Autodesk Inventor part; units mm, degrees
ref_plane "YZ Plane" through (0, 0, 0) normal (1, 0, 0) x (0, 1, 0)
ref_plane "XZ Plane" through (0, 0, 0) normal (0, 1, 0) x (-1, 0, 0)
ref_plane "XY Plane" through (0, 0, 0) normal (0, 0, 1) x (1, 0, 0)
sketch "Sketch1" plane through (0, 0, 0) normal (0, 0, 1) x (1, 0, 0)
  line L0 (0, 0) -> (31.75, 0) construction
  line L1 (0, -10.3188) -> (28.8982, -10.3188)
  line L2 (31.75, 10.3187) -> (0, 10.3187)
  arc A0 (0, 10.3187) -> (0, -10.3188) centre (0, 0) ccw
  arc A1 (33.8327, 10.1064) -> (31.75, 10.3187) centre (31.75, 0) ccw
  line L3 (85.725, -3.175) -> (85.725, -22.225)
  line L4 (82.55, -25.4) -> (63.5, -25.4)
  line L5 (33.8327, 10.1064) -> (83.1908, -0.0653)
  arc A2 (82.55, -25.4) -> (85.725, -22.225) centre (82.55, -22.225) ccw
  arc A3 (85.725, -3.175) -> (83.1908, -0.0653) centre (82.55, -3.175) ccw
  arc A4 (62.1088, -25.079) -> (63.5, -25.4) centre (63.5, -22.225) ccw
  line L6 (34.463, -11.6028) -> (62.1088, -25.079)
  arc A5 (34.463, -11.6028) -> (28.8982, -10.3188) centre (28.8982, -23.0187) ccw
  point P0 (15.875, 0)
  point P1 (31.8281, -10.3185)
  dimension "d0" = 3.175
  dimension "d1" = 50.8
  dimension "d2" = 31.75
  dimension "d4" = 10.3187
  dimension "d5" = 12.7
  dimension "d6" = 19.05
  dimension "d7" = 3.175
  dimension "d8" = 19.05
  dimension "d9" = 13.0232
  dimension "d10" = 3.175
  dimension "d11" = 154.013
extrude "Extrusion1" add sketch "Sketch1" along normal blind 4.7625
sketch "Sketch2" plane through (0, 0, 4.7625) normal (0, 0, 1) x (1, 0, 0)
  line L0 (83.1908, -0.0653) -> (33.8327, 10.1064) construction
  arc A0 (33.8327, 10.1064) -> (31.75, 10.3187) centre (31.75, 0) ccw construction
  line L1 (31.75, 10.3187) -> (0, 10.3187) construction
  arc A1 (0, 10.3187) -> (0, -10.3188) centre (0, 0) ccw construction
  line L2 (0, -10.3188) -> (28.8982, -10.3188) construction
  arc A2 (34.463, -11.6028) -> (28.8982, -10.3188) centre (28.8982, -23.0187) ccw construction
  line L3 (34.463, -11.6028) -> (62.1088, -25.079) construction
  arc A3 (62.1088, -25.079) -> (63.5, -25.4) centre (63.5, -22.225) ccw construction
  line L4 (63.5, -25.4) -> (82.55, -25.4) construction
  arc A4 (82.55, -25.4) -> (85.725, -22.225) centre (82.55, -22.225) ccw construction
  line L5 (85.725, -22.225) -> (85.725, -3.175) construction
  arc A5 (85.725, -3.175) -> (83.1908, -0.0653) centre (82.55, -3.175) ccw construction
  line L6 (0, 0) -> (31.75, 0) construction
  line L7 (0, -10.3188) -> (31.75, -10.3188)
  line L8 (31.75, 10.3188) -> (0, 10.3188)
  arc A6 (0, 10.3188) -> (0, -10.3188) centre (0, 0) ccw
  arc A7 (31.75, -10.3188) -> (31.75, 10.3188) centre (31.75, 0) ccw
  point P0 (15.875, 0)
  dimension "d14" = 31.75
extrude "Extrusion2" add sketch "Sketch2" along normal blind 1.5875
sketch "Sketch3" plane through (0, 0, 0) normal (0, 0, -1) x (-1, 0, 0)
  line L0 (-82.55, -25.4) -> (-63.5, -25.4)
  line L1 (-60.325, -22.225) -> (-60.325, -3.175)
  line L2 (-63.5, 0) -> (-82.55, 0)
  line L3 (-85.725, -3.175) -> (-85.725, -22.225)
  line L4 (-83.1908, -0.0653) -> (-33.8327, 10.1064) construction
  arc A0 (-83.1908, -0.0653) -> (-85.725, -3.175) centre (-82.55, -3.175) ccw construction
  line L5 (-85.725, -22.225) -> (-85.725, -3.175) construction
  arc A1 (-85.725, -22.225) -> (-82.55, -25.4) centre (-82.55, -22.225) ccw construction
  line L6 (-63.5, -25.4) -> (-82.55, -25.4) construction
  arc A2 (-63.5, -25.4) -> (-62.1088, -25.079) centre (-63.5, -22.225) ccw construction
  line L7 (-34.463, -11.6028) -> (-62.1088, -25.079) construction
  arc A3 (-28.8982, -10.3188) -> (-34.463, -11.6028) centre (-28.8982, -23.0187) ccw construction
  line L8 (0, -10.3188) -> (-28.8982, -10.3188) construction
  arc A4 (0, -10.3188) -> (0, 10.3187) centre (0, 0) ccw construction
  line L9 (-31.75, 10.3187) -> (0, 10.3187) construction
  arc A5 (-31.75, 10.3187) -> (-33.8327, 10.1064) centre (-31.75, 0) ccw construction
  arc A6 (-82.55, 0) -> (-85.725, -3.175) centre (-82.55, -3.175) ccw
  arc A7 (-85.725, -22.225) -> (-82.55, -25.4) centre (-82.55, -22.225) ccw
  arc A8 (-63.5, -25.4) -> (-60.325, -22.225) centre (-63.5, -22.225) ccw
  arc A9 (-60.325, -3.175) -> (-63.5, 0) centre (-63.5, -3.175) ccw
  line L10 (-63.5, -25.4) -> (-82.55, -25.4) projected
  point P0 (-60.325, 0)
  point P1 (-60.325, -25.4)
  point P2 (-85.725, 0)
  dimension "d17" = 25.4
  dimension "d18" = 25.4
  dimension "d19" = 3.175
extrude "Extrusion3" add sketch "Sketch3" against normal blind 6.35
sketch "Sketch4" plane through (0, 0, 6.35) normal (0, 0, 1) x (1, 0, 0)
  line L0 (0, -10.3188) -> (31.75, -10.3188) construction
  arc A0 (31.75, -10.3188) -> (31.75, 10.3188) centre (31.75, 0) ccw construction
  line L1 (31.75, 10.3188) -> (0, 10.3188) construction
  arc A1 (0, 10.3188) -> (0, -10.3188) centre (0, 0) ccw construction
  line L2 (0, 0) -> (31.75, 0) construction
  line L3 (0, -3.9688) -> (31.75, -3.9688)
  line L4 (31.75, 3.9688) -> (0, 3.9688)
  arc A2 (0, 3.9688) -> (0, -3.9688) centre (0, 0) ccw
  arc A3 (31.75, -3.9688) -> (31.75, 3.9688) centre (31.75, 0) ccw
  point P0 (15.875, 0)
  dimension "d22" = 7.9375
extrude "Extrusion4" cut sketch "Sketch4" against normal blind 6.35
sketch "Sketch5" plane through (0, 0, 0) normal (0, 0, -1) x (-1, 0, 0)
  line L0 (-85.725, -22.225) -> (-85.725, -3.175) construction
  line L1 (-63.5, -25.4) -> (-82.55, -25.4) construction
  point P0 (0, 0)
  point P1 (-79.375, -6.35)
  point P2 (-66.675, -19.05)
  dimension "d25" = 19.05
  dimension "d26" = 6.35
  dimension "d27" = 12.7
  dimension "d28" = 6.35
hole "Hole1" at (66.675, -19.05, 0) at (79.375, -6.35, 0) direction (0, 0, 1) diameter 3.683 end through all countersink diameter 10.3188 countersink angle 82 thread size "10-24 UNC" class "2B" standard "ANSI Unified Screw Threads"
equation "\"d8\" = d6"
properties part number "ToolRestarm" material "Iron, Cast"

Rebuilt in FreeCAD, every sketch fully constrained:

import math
import FreeCAD as App
import Part
import Sketcher
Q = App.Units.Quantity

doc = App.newDocument("Part")
body = doc.addObject("PartDesign::Body", "Body")

sketch1 = body.newObject("Sketcher::SketchObject", "Sketch")
sketch1.AttachmentSupport = (doc.getObject("XY_Plane"), [""])
sketch1.MapMode = "FlatFace"
sketch1.addGeometry([
    Part.ArcOfCircle(Part.Circle(App.Vector(0, 0, 0), App.Vector(0, 0, 1), 10.3), math.radians(90), math.radians(270)),
    Part.LineSegment(App.Vector(0, -10.3, 0), App.Vector(28.9, -10.3, 0)),
    Part.ArcOfCircle(Part.Circle(App.Vector(28.9, -23, 0), App.Vector(0, 0, 1), 12.7), math.radians(64), math.radians(90)),
    Part.LineSegment(App.Vector(34.5, -11.6, 0), App.Vector(62.1, -25.1, 0)),
    Part.ArcOfCircle(Part.Circle(App.Vector(63.5, -22.2, 0), App.Vector(0, 0, 1), 3.2), math.radians(-116), math.radians(-90)),
    Part.LineSegment(App.Vector(63.5, -25.4, 0), App.Vector(82.5, -25.4, 0)),
    Part.ArcOfCircle(Part.Circle(App.Vector(82.5, -22.2, 0), App.Vector(0, 0, 1), 3.2), math.radians(-90), math.radians(0)),
    Part.LineSegment(App.Vector(85.7, -22.2, 0), App.Vector(85.7, -3.2, 0)),
    Part.ArcOfCircle(Part.Circle(App.Vector(82.5, -3.2, 0), App.Vector(0, 0, 1), 3.2), math.radians(0), math.radians(78)),
    Part.LineSegment(App.Vector(83.2, -0.1, 0), App.Vector(33.8, 10.1, 0)),
    Part.ArcOfCircle(Part.Circle(App.Vector(31.8, 0, 0), App.Vector(0, 0, 1), 10.3), math.radians(78.35), math.radians(90.01)),
    Part.LineSegment(App.Vector(31.8, 10.3, 0), App.Vector(0, 10.3, 0)),
], False)
sketch1.addConstraint([
    Sketcher.Constraint("Tangent", 0, 2, 1, 1),
    Sketcher.Constraint("Tangent", 1, 2, 2, 2),
    Sketcher.Constraint("Tangent", 2, 1, 3, 1),
    Sketcher.Constraint("Tangent", 3, 2, 4, 1),
    Sketcher.Constraint("Tangent", 4, 2, 5, 1),
    Sketcher.Constraint("Tangent", 5, 2, 6, 1),
    Sketcher.Constraint("Tangent", 6, 2, 7, 1),
    Sketcher.Constraint("Tangent", 7, 2, 8, 1),
    Sketcher.Constraint("Tangent", 8, 2, 9, 1),
    Sketcher.Constraint("Tangent", 9, 2, 10, 1),
    Sketcher.Constraint("Tangent", 10, 2, 11, 1),
    Sketcher.Constraint("Tangent", 11, 2, 0, 1),
    Sketcher.Constraint("Horizontal", 1),
    Sketcher.Constraint("Horizontal", 5),
    Sketcher.Constraint("Vertical", 7),
    Sketcher.Constraint("Horizontal", 11),
    Sketcher.Constraint("Coincident", 0, 3, -1, 1),
    Sketcher.Constraint("Equal", 4, 6),
    Sketcher.Constraint("Equal", 6, 8),
    Sketcher.Constraint("Equal", 5, 7),
    Sketcher.Constraint("Radius", 0, Q("0.406248 in")),
    Sketcher.Constraint("Radius", 4, Q("0.125 in")),
    Sketcher.Constraint("DistanceX", 5, 1, 5, 2, Q("0.75 in")),
    Sketcher.Constraint("DistanceX", 11, 2, 11, 1, Q("1.25 in")),
    Sketcher.Constraint("DistanceY", 8, 3, -1, 1, Q("0.125 in")),
    Sketcher.Constraint("Radius", 10, Q("0.406 in")),
    Sketcher.Constraint("DistanceX", -1, 1, 4, 3, Q("2.5 in")),
    Sketcher.Constraint("Radius", 2, Q("12.6982 mm")),
    Sketcher.Constraint("DistanceX", 1, 1, 1, 2, Q("28.8982 mm")),
])
pad1 = body.newObject("PartDesign::Pad", "Pad")
pad1.Profile = sketch1
pad1.Length = Q("0.1875 in")

sketch2 = body.newObject("Sketcher::SketchObject", "Sketch001")
sketch2.AttachmentSupport = (doc.getObject("XY_Plane"), [""])
sketch2.MapMode = "FlatFace"
sketch2.AttachmentOffset = App.Placement(App.Vector(0, 0, 0.1875 * 25.4), App.Rotation())
sketch2.addGeometry([
    Part.ArcOfCircle(Part.Circle(App.Vector(0, 0, 0), App.Vector(0, 0, 1), 10), math.radians(90), math.radians(270)),
    Part.LineSegment(App.Vector(0, -10, 0), App.Vector(32, -10, 0)),
    Part.ArcOfCircle(Part.Circle(App.Vector(32, 0, 0), App.Vector(0, 0, 1), 10), math.radians(-90), math.radians(90)),
    Part.LineSegment(App.Vector(32, 10, 0), App.Vector(0, 10, 0)),
], False)
sketch2.addConstraint([
    Sketcher.Constraint("Tangent", 0, 2, 1, 1),
    Sketcher.Constraint("Tangent", 1, 2, 2, 1),
    Sketcher.Constraint("Tangent", 2, 2, 3, 1),
    Sketcher.Constraint("Tangent", 3, 2, 0, 1),
    Sketcher.Constraint("Horizontal", 1),
    Sketcher.Constraint("Horizontal", 3),
    Sketcher.Constraint("Coincident", 0, 3, -1, 1),
    Sketcher.Constraint("DistanceX", 1, 1, 1, 2, Q("1.25 in")),
    Sketcher.Constraint("Radius", 0, Q("0.406252 in")),
])
pad2 = body.newObject("PartDesign::Pad", "Pad001")
pad2.Profile = sketch2
pad2.Length = Q("0.0625 in")

sketch3 = body.newObject("Sketcher::SketchObject", "Sketch002")
sketch3.AttachmentSupport = (doc.getObject("XY_Plane"), [""])
sketch3.MapMode = "FlatFace"
sketch3.addGeometry([
    Part.ArcOfCircle(Part.Circle(App.Vector(82.5, -22.2, 0), App.Vector(0, 0, 1), 3.2), math.radians(-90), math.radians(0)),
    Part.LineSegment(App.Vector(82.5, -25.4, 0), App.Vector(63.5, -25.4, 0)),
    Part.ArcOfCircle(Part.Circle(App.Vector(63.5, -22.2, 0), App.Vector(0, 0, 1), 3.2), math.radians(180), math.radians(270)),
    Part.LineSegment(App.Vector(60.3, -22.2, 0), App.Vector(60.3, -3.2, 0)),
    Part.ArcOfCircle(Part.Circle(App.Vector(63.5, -3.2, 0), App.Vector(0, 0, 1), 3.2), math.radians(90), math.radians(180)),
    Part.LineSegment(App.Vector(63.5, 0, 0), App.Vector(82.5, 0, 0)),
    Part.ArcOfCircle(Part.Circle(App.Vector(82.5, -3.2, 0), App.Vector(0, 0, 1), 3.2), math.radians(0), math.radians(90)),
    Part.LineSegment(App.Vector(85.7, -3.2, 0), App.Vector(85.7, -22.2, 0)),
], False)
sketch3.addConstraint([
    Sketcher.Constraint("Tangent", 0, 1, 1, 1),
    Sketcher.Constraint("Tangent", 1, 2, 2, 2),
    Sketcher.Constraint("Tangent", 2, 1, 3, 1),
    Sketcher.Constraint("Tangent", 3, 2, 4, 2),
    Sketcher.Constraint("Tangent", 4, 1, 5, 1),
    Sketcher.Constraint("Tangent", 5, 2, 6, 2),
    Sketcher.Constraint("Tangent", 6, 1, 7, 1),
    Sketcher.Constraint("Tangent", 7, 2, 0, 2),
    Sketcher.Constraint("Horizontal", 1),
    Sketcher.Constraint("Vertical", 3),
    Sketcher.Constraint("Horizontal", 5),
    Sketcher.Constraint("Vertical", 7),
    Sketcher.Constraint("Equal", 0, 2),
    Sketcher.Constraint("Equal", 2, 4),
    Sketcher.Constraint("Equal", 4, 6),
    Sketcher.Constraint("PointOnObject", 4, 1, -1),
    Sketcher.Constraint("Equal", 5, 3),
    Sketcher.Constraint("DistanceY", 0, 1, -1, 1, Q("1 in")),
    Sketcher.Constraint("Radius", 0, Q("0.125 in")),
    Sketcher.Constraint("DistanceX", -1, 1, 2, 3, Q("2.5 in")),
])
pad3 = body.newObject("PartDesign::Pad", "Pad002")
pad3.Profile = sketch3
pad3.Length = Q("0.25 in")

sketch4 = body.newObject("Sketcher::SketchObject", "Sketch003")
sketch4.AttachmentSupport = (doc.getObject("XY_Plane"), [""])
sketch4.MapMode = "FlatFace"
sketch4.AttachmentOffset = App.Placement(App.Vector(0, 0, 0.25 * 25.4), App.Rotation())
sketch4.addGeometry([
    Part.ArcOfCircle(Part.Circle(App.Vector(0, 0, 0), App.Vector(0, 0, 1), 4), math.radians(90), math.radians(270)),
    Part.LineSegment(App.Vector(0, -4, 0), App.Vector(31.8, -4, 0)),
    Part.ArcOfCircle(Part.Circle(App.Vector(31.8, 0, 0), App.Vector(0, 0, 1), 4), math.radians(-90), math.radians(90)),
    Part.LineSegment(App.Vector(31.8, 4, 0), App.Vector(0, 4, 0)),
], False)
sketch4.addConstraint([
    Sketcher.Constraint("Tangent", 0, 2, 1, 1),
    Sketcher.Constraint("Tangent", 1, 2, 2, 1),
    Sketcher.Constraint("Tangent", 2, 2, 3, 1),
    Sketcher.Constraint("Tangent", 3, 2, 0, 1),
    Sketcher.Constraint("Horizontal", 1),
    Sketcher.Constraint("Horizontal", 3),
    Sketcher.Constraint("Coincident", 0, 3, -1, 1),
    Sketcher.Constraint("Radius", 0, Q("0.156252 in")),
    Sketcher.Constraint("DistanceX", 1, 1, 1, 2, Q("1.25 in")),
])
pocket1 = body.newObject("PartDesign::Pocket", "Pocket")
pocket1.Profile = sketch4
pocket1.Length = Q("0.25 in")

sketch5 = body.newObject("Sketcher::SketchObject", "Sketch004")
sketch5.AttachmentSupport = (doc.getObject("XY_Plane"), [""])
sketch5.MapMode = "FlatFace"
sketch5.addGeometry([
    Part.Circle(App.Vector(66.7, -19.1, 0), App.Vector(0, 0, 1), 1.8),
    Part.Circle(App.Vector(79.4, -6.3, 0), App.Vector(0, 0, 1), 1.8),
], False)
sketch5.addConstraint([
    Sketcher.Constraint("Equal", 0, 1),
    Sketcher.Constraint("Diameter", 0, Q("0.145 in")),
    Sketcher.Constraint("DistanceX", 0, 3, 1, 3, Q("0.5 in")),
    Sketcher.Constraint("DistanceY", 0, 3, 1, 3, Q("0.5 in")),
    Sketcher.Constraint("DistanceY", 0, 3, -1, 1, Q("0.75 in")),
    Sketcher.Constraint("DistanceX", -1, 1, 0, 3, Q("2.625 in")),
])
doc.recompute()
hole = body.newObject("PartDesign::Hole", "Hole")
hole.Profile = sketch5
hole.ThreadType = "None"
hole.Diameter = Q("0.145 in")
hole.DepthType = "ThroughAll"
hole.HoleCutType = "Countersink"
hole.HoleCutDiameter = Q("0.406252 in")
hole.HoleCutCountersinkAngle = 82
hole.Reversed = True

doc.recompute()
